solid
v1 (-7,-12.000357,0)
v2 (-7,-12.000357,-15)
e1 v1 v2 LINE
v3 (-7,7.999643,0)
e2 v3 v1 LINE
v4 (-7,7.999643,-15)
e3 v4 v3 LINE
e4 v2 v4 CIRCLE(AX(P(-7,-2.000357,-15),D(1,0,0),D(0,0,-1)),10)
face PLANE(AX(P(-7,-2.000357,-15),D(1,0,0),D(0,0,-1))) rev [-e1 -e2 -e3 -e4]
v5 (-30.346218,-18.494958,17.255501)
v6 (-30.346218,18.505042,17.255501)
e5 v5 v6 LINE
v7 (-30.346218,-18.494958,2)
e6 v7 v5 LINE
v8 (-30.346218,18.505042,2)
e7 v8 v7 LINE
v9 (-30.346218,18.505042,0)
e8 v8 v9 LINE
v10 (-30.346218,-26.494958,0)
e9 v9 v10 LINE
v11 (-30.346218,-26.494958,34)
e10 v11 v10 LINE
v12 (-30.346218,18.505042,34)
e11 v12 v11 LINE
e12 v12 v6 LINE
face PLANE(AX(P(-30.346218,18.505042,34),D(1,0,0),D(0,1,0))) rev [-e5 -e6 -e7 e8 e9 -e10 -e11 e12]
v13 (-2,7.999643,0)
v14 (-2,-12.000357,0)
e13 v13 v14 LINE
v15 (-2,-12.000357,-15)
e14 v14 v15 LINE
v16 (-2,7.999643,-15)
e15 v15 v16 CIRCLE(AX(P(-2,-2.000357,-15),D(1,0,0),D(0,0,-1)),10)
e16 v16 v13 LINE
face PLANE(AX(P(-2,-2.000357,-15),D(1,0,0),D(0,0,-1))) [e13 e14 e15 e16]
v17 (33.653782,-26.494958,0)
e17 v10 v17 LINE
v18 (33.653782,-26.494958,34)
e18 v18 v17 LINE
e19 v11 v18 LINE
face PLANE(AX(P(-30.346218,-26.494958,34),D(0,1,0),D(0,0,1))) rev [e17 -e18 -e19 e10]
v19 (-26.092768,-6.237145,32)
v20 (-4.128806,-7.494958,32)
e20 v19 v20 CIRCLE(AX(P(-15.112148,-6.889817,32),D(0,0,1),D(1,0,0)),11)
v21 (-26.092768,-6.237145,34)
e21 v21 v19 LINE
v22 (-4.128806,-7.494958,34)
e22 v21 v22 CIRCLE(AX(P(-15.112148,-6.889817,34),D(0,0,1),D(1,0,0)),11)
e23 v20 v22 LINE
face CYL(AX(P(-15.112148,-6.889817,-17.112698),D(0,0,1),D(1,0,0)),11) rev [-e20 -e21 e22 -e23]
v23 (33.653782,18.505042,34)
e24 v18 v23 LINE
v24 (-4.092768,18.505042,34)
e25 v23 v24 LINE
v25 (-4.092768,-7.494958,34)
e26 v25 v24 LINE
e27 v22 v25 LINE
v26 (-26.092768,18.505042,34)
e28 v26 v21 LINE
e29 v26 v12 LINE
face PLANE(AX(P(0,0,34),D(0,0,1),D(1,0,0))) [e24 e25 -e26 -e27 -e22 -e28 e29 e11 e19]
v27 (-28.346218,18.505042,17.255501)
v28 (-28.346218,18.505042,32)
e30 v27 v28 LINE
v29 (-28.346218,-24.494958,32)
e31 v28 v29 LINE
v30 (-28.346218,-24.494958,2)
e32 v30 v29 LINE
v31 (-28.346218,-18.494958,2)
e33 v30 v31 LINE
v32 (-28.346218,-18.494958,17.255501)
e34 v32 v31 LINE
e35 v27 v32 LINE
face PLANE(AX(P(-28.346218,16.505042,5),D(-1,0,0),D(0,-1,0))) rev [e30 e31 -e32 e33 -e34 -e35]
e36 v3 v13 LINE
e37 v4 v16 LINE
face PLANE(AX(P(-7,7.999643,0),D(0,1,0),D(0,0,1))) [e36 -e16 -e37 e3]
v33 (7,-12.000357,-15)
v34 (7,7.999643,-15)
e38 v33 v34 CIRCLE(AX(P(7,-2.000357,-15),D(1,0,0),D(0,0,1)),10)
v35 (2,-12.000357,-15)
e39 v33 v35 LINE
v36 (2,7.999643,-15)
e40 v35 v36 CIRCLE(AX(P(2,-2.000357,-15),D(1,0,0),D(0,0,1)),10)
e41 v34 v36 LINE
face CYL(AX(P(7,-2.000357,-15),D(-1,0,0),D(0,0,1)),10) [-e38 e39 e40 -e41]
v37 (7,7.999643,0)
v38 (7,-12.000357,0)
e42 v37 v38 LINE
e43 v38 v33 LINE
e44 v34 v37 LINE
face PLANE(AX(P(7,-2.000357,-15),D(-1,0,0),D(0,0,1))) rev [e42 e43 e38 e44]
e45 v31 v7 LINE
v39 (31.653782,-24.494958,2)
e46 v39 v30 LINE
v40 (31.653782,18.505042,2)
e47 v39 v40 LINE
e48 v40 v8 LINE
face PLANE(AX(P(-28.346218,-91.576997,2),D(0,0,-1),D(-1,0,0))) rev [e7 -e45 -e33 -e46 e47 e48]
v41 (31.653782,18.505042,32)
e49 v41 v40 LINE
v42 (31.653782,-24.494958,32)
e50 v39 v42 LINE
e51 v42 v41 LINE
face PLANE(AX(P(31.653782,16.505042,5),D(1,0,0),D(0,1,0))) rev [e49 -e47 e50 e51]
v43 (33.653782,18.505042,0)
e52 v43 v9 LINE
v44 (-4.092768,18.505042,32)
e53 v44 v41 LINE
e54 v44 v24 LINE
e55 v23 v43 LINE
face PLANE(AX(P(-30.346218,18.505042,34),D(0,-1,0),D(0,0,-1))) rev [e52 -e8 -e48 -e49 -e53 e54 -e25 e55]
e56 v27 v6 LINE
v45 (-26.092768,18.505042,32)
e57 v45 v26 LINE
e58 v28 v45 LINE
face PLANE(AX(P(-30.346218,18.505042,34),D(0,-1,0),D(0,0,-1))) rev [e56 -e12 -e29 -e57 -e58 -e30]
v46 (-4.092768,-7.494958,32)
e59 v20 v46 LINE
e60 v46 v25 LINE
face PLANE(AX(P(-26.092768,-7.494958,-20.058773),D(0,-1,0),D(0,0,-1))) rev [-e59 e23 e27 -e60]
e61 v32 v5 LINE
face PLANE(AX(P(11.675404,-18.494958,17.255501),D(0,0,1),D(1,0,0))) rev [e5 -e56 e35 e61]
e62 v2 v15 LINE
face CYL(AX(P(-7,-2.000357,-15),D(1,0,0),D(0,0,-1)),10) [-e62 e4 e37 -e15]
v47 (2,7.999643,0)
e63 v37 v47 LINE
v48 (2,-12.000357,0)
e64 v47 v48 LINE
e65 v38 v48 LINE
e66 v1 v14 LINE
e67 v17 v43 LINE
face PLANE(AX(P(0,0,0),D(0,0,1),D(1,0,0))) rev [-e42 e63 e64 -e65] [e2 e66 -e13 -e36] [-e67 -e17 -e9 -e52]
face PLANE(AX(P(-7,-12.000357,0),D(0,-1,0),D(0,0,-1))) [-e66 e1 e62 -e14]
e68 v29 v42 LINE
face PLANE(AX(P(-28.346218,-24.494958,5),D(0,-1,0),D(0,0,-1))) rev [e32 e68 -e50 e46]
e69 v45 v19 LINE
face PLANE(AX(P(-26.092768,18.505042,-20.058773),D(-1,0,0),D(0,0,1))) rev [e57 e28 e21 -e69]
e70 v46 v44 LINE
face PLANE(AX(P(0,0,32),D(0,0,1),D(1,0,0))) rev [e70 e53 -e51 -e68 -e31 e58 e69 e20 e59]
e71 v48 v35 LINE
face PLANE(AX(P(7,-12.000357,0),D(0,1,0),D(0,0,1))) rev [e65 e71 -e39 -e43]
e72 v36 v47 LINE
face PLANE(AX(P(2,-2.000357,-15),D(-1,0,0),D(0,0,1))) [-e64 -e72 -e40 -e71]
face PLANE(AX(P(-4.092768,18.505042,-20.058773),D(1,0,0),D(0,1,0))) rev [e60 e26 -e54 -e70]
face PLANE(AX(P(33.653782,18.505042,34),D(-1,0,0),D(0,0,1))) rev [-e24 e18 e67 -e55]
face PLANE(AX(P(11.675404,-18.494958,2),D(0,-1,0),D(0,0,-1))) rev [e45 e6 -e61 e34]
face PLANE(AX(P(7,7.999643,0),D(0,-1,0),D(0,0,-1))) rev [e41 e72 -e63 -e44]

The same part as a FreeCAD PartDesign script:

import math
import FreeCAD as App
import Part
import Sketcher
Q = App.Units.Quantity

doc = App.newDocument("Part")
body = doc.addObject("PartDesign::Body", "Body")

sketch1 = body.newObject("Sketcher::SketchObject", "Sketch")
sketch1.AttachmentSupport = (doc.getObject("XY_Plane"), [""])
sketch1.MapMode = "FlatFace"
sketch1.addGeometry([
    Part.LineSegment(App.Vector(-30, 19, 0), App.Vector(-30, -26, 0)),
    Part.LineSegment(App.Vector(-30, -26, 0), App.Vector(34, -26, 0)),
    Part.LineSegment(App.Vector(34, -26, 0), App.Vector(34, 19, 0)),
    Part.LineSegment(App.Vector(34, 19, 0), App.Vector(-30, 19, 0)),
], False)
sketch1.addConstraint([
    Sketcher.Constraint("Coincident", 0, 2, 1, 1),
    Sketcher.Constraint("Coincident", 1, 2, 2, 1),
    Sketcher.Constraint("Coincident", 2, 2, 3, 1),
    Sketcher.Constraint("Coincident", 3, 2, 0, 1),
    Sketcher.Constraint("Vertical", 0),
    Sketcher.Constraint("Horizontal", 1),
    Sketcher.Constraint("Vertical", 2),
    Sketcher.Constraint("Horizontal", 3),
    Sketcher.Constraint("DistanceX", 1, 1, 1, 2, Q("64 mm")),
    Sketcher.Constraint("DistanceY", 0, 2, 0, 1, Q("45 mm")),
    Sketcher.Constraint("DistanceX", 0, 2, -1, 1, Q("30.346218 mm")),
    Sketcher.Constraint("DistanceY", 0, 2, -1, 1, Q("26.494958 mm")),
])
pad1 = body.newObject("PartDesign::Pad", "Pad")
pad1.Profile = sketch1
pad1.Length = 34

sketch2 = body.newObject("Sketcher::SketchObject", "Sketch001")
sketch2.AttachmentSupport = (doc.getObject("XY_Plane"), [""])
sketch2.MapMode = "FlatFace"
sketch2.AttachmentOffset = App.Placement(App.Vector(0, 0, 32), App.Rotation())
sketch2.addGeometry([
    Part.LineSegment(App.Vector(-28, 17, 0), App.Vector(-28, -24, 0)),
    Part.LineSegment(App.Vector(-28, -24, 0), App.Vector(32, -24, 0)),
    Part.LineSegment(App.Vector(32, -24, 0), App.Vector(32, 17, 0)),
    Part.LineSegment(App.Vector(32, 17, 0), App.Vector(-28, 17, 0)),
], False)
sketch2.addConstraint([
    Sketcher.Constraint("Coincident", 0, 2, 1, 1),
    Sketcher.Constraint("Coincident", 1, 2, 2, 1),
    Sketcher.Constraint("Coincident", 2, 2, 3, 1),
    Sketcher.Constraint("Coincident", 3, 2, 0, 1),
    Sketcher.Constraint("Vertical", 0),
    Sketcher.Constraint("Horizontal", 1),
    Sketcher.Constraint("Vertical", 2),
    Sketcher.Constraint("Horizontal", 3),
    Sketcher.Constraint("DistanceX", 1, 1, 1, 2, Q("60 mm")),
    Sketcher.Constraint("DistanceY", 0, 2, 0, 1, Q("41 mm")),
    Sketcher.Constraint("DistanceX", 0, 2, -1, 1, Q("28.346218 mm")),
    Sketcher.Constraint("DistanceY", 0, 2, -1, 1, Q("24.494958 mm")),
])
pocket1 = body.newObject("PartDesign::Pocket", "Pocket")
pocket1.Profile = sketch2
pocket1.Length = 27

sketch3 = body.newObject("Sketcher::SketchObject", "Sketch002")
sketch3.AttachmentSupport = (doc.getObject("XZ_Plane"), [""])
sketch3.MapMode = "FlatFace"
sketch3.AttachmentOffset = App.Placement(App.Vector(0, 0, -18.505042), App.Rotation())
sketch3.addGeometry([
    Part.LineSegment(App.Vector(-28, 2, 0), App.Vector(-28, 32, 0)),
    Part.LineSegment(App.Vector(-28, 32, 0), App.Vector(32, 32, 0)),
    Part.LineSegment(App.Vector(32, 32, 0), App.Vector(32, 2, 0)),
    Part.LineSegment(App.Vector(32, 2, 0), App.Vector(-28, 2, 0)),
], False)
sketch3.addConstraint([
    Sketcher.Constraint("Coincident", 0, 2, 1, 1),
    Sketcher.Constraint("Coincident", 1, 2, 2, 1),
    Sketcher.Constraint("Coincident", 2, 2, 3, 1),
    Sketcher.Constraint("Coincident", 3, 2, 0, 1),
    Sketcher.Constraint("Vertical", 0),
    Sketcher.Constraint("Horizontal", 1),
    Sketcher.Constraint("Vertical", 2),
    Sketcher.Constraint("Horizontal", 3),
    Sketcher.Constraint("DistanceX", 1, 1, 1, 2, Q("60 mm")),
    Sketcher.Constraint("DistanceY", 0, 1, 0, 2, Q("30 mm")),
    Sketcher.Constraint("DistanceY", -1, 1, 0, 2, Q("32 mm")),
    Sketcher.Constraint("DistanceX", 0, 2, -1, 1, Q("28.346218 mm")),
])
pocket2 = body.newObject("PartDesign::Pocket", "Pocket001")
pocket2.Profile = sketch3
pocket2.Length = 43
pocket2.Reversed = True

sketch4 = body.newObject("Sketcher::SketchObject", "Sketch003")
sketch4.AttachmentSupport = (doc.getObject("YZ_Plane"), [""])
sketch4.MapMode = "FlatFace"
sketch4.AttachmentOffset = App.Placement(App.Vector(0, 0, 2), App.Rotation())
sketch4.addGeometry([
    Part.LineSegment(App.Vector(8, -15, 0), App.Vector(8, 0, 0)),
    Part.LineSegment(App.Vector(8, 0, 0), App.Vector(-12, 0, 0)),
    Part.LineSegment(App.Vector(-12, 0, 0), App.Vector(-12, -15, 0)),
    Part.ArcOfCircle(Part.Circle(App.Vector(-2, -15, 0), App.Vector(0, 0, 1), 10), math.radians(180), math.radians(360)),
], False)
sketch4.addConstraint([
    Sketcher.Constraint("Coincident", 0, 2, 1, 1),
    Sketcher.Constraint("Coincident", 1, 2, 2, 1),
    Sketcher.Constraint("Tangent", 2, 2, 3, 1),
    Sketcher.Constraint("Tangent", 3, 2, 0, 1),
    Sketcher.Constraint("Vertical", 0),
    Sketcher.Constraint("Horizontal", 1),
    Sketcher.Constraint("Vertical", 2),
    Sketcher.Constraint("PointOnObject", 0, 2, -1),
    Sketcher.Constraint("Radius", 3, Q("10 mm")),
    Sketcher.Constraint("DistanceY", 0, 1, 0, 2, Q("15 mm")),
    Sketcher.Constraint("DistanceX", 3, 3, -1, 1, Q("2.000357 mm")),
])
pad2 = body.newObject("PartDesign::Pad", "Pad001")
pad2.Profile = sketch4
pad2.Length = 5

sketch5 = body.newObject("Sketcher::SketchObject", "Sketch004")
sketch5.AttachmentSupport = (doc.getObject("YZ_Plane"), [""])
sketch5.MapMode = "FlatFace"
sketch5.AttachmentOffset = App.Placement(App.Vector(0, 0, -7), App.Rotation())
sketch5.addGeometry([
    Part.LineSegment(App.Vector(8, 0, 0), App.Vector(-12, 0, 0)),
    Part.LineSegment(App.Vector(-12, 0, 0), App.Vector(-12, -15, 0)),
    Part.ArcOfCircle(Part.Circle(App.Vector(-2, -15, 0), App.Vector(0, 0, 1), 10), math.radians(180), math.radians(360)),
    Part.LineSegment(App.Vector(8, -15, 0), App.Vector(8, 0, 0)),
], False)
sketch5.addConstraint([
    Sketcher.Constraint("Coincident", 0, 2, 1, 1),
    Sketcher.Constraint("Tangent", 1, 2, 2, 1),
    Sketcher.Constraint("Tangent", 2, 2, 3, 1),
    Sketcher.Constraint("Coincident", 3, 2, 0, 1),
    Sketcher.Constraint("Horizontal", 0),
    Sketcher.Constraint("Vertical", 1),
    Sketcher.Constraint("Vertical", 3),
    Sketcher.Constraint("PointOnObject", 0, 2, -1),
    Sketcher.Constraint("Radius", 2, Q("10 mm")),
    Sketcher.Constraint("DistanceY", 1, 2, 1, 1, Q("15 mm")),
    Sketcher.Constraint("DistanceX", 2, 3, -1, 1, Q("2.000357 mm")),
])
pad3 = body.newObject("PartDesign::Pad", "Pad002")
pad3.Profile = sketch5
pad3.Length = 5

sketch6 = body.newObject("Sketcher::SketchObject", "Sketch005")
sketch6.AttachmentSupport = (doc.getObject("YZ_Plane"), [""])
sketch6.MapMode = "FlatFace"
sketch6.AttachmentOffset = App.Placement(App.Vector(0, 0, -30.346218), App.Rotation())
sketch6.addGeometry([
    Part.LineSegment(App.Vector(19, 2, 0), App.Vector(-18, 2, 0)),
    Part.LineSegment(App.Vector(-18, 2, 0), App.Vector(-18, 17, 0)),
    Part.LineSegment(App.Vector(-18, 17, 0), App.Vector(19, 17, 0)),
    Part.LineSegment(App.Vector(19, 17, 0), App.Vector(19, 2, 0)),
], False)
sketch6.addConstraint([
    Sketcher.Constraint("Coincident", 0, 2, 1, 1),
    Sketcher.Constraint("Coincident", 1, 2, 2, 1),
    Sketcher.Constraint("Coincident", 2, 2, 3, 1),
    Sketcher.Constraint("Coincident", 3, 2, 0, 1),
    Sketcher.Constraint("Horizontal", 0),
    Sketcher.Constraint("Vertical", 1),
    Sketcher.Constraint("Horizontal", 2),
    Sketcher.Constraint("Vertical", 3),
    Sketcher.Constraint("DistanceX", 0, 2, 0, 1, Q("37 mm")),
    Sketcher.Constraint("DistanceY", -1, 1, 0, 2, Q("2 mm")),
    Sketcher.Constraint("DistanceY", 1, 1, 1, 2, Q("15.255501 mm")),
    Sketcher.Constraint("DistanceX", 0, 2, -1, 1, Q("18.494958 mm")),
])
pocket3 = body.newObject("PartDesign::Pocket", "Pocket002")
pocket3.Profile = sketch6
pocket3.Length = 2
pocket3.Reversed = True

sketch7 = body.newObject("Sketcher::SketchObject", "Sketch006")
sketch7.AttachmentSupport = (doc.getObject("XY_Plane"), [""])
sketch7.MapMode = "FlatFace"
sketch7.AttachmentOffset = App.Placement(App.Vector(0, 0, 34), App.Rotation())
sketch7.addGeometry([
    Part.LineSegment(App.Vector(-26, 19, 0), App.Vector(-26, -7, 0)),
    Part.LineSegment(App.Vector(-26, -7, 0), App.Vector(-4, -7, 0)),
    Part.LineSegment(App.Vector(-4, -7, 0), App.Vector(-4, 19, 0)),
    Part.LineSegment(App.Vector(-4, 19, 0), App.Vector(-26, 19, 0)),
], False)
sketch7.addConstraint([
    Sketcher.Constraint("Coincident", 0, 2, 1, 1),
    Sketcher.Constraint("Coincident", 1, 2, 2, 1),
    Sketcher.Constraint("Coincident", 2, 2, 3, 1),
    Sketcher.Constraint("Coincident", 3, 2, 0, 1),
    Sketcher.Constraint("Vertical", 0),
    Sketcher.Constraint("Horizontal", 1),
    Sketcher.Constraint("Vertical", 2),
    Sketcher.Constraint("Horizontal", 3),
    Sketcher.Constraint("DistanceX", 1, 1, 1, 2, Q("22 mm")),
    Sketcher.Constraint("DistanceY", 0, 2, 0, 1, Q("26 mm")),
    Sketcher.Constraint("DistanceX", 0, 2, -1, 1, Q("26.092768 mm")),
    Sketcher.Constraint("DistanceY", 0, 2, -1, 1, Q("7.494958 mm")),
])
pocket4 = body.newObject("PartDesign::Pocket", "Pocket003")
pocket4.Profile = sketch7
pocket4.Length = 10

sketch8 = body.newObject("Sketcher::SketchObject", "Sketch007")
sketch8.AttachmentSupport = (doc.getObject("XY_Plane"), [""])
sketch8.MapMode = "FlatFace"
sketch8.AttachmentOffset = App.Placement(App.Vector(0, 0, 34), App.Rotation())
sketch8.addGeometry(Part.Circle(App.Vector(-15, -7, 0), App.Vector(0, 0, 1), 11), False)
sketch8.addConstraint([
    Sketcher.Constraint("Diameter", 0, Q("22 mm")),
    Sketcher.Constraint("DistanceX", 0, 3, -1, 1, Q("15.112148 mm")),
    Sketcher.Constraint("DistanceY", 0, 3, -1, 1, Q("6.889817 mm")),
])
pocket5 = body.newObject("PartDesign::Pocket", "Pocket004")
pocket5.Profile = sketch8
pocket5.Length = 10

doc.recompute()
